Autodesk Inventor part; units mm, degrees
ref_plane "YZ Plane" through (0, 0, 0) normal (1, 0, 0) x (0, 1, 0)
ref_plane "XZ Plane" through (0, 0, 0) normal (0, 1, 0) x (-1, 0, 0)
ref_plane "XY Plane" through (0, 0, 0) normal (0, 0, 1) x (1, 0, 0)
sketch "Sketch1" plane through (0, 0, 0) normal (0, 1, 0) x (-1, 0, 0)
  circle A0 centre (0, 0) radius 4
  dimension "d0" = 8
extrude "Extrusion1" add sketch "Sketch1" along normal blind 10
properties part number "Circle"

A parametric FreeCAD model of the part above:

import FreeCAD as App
import Part
import Sketcher
Q = App.Units.Quantity

doc = App.newDocument("Part")
body = doc.addObject("PartDesign::Body", "Body")

sketch1 = doc.addObject("Sketcher::SketchObject", "Sketch")
body.addObject(sketch1)
sketch1.AttachmentSupport = (doc.XZ_Plane, [""])
sketch1.MapMode = "FlatFace"
sketch1.addGeometry(Part.Circle(App.Vector(0, 0, 0), App.Vector(0, 0, 1), 4), False)
sketch1.addConstraint([
    Sketcher.Constraint("Coincident", 0, 3, -1, 1),
    Sketcher.Constraint("Diameter", 0, Q("8 mm")),
])
pad1 = doc.addObject("PartDesign::Pad", "Pad")
body.addObject(pad1)
pad1.Profile = sketch1
pad1.Length = 10
pad1.Reversed = True

doc.recompute()
